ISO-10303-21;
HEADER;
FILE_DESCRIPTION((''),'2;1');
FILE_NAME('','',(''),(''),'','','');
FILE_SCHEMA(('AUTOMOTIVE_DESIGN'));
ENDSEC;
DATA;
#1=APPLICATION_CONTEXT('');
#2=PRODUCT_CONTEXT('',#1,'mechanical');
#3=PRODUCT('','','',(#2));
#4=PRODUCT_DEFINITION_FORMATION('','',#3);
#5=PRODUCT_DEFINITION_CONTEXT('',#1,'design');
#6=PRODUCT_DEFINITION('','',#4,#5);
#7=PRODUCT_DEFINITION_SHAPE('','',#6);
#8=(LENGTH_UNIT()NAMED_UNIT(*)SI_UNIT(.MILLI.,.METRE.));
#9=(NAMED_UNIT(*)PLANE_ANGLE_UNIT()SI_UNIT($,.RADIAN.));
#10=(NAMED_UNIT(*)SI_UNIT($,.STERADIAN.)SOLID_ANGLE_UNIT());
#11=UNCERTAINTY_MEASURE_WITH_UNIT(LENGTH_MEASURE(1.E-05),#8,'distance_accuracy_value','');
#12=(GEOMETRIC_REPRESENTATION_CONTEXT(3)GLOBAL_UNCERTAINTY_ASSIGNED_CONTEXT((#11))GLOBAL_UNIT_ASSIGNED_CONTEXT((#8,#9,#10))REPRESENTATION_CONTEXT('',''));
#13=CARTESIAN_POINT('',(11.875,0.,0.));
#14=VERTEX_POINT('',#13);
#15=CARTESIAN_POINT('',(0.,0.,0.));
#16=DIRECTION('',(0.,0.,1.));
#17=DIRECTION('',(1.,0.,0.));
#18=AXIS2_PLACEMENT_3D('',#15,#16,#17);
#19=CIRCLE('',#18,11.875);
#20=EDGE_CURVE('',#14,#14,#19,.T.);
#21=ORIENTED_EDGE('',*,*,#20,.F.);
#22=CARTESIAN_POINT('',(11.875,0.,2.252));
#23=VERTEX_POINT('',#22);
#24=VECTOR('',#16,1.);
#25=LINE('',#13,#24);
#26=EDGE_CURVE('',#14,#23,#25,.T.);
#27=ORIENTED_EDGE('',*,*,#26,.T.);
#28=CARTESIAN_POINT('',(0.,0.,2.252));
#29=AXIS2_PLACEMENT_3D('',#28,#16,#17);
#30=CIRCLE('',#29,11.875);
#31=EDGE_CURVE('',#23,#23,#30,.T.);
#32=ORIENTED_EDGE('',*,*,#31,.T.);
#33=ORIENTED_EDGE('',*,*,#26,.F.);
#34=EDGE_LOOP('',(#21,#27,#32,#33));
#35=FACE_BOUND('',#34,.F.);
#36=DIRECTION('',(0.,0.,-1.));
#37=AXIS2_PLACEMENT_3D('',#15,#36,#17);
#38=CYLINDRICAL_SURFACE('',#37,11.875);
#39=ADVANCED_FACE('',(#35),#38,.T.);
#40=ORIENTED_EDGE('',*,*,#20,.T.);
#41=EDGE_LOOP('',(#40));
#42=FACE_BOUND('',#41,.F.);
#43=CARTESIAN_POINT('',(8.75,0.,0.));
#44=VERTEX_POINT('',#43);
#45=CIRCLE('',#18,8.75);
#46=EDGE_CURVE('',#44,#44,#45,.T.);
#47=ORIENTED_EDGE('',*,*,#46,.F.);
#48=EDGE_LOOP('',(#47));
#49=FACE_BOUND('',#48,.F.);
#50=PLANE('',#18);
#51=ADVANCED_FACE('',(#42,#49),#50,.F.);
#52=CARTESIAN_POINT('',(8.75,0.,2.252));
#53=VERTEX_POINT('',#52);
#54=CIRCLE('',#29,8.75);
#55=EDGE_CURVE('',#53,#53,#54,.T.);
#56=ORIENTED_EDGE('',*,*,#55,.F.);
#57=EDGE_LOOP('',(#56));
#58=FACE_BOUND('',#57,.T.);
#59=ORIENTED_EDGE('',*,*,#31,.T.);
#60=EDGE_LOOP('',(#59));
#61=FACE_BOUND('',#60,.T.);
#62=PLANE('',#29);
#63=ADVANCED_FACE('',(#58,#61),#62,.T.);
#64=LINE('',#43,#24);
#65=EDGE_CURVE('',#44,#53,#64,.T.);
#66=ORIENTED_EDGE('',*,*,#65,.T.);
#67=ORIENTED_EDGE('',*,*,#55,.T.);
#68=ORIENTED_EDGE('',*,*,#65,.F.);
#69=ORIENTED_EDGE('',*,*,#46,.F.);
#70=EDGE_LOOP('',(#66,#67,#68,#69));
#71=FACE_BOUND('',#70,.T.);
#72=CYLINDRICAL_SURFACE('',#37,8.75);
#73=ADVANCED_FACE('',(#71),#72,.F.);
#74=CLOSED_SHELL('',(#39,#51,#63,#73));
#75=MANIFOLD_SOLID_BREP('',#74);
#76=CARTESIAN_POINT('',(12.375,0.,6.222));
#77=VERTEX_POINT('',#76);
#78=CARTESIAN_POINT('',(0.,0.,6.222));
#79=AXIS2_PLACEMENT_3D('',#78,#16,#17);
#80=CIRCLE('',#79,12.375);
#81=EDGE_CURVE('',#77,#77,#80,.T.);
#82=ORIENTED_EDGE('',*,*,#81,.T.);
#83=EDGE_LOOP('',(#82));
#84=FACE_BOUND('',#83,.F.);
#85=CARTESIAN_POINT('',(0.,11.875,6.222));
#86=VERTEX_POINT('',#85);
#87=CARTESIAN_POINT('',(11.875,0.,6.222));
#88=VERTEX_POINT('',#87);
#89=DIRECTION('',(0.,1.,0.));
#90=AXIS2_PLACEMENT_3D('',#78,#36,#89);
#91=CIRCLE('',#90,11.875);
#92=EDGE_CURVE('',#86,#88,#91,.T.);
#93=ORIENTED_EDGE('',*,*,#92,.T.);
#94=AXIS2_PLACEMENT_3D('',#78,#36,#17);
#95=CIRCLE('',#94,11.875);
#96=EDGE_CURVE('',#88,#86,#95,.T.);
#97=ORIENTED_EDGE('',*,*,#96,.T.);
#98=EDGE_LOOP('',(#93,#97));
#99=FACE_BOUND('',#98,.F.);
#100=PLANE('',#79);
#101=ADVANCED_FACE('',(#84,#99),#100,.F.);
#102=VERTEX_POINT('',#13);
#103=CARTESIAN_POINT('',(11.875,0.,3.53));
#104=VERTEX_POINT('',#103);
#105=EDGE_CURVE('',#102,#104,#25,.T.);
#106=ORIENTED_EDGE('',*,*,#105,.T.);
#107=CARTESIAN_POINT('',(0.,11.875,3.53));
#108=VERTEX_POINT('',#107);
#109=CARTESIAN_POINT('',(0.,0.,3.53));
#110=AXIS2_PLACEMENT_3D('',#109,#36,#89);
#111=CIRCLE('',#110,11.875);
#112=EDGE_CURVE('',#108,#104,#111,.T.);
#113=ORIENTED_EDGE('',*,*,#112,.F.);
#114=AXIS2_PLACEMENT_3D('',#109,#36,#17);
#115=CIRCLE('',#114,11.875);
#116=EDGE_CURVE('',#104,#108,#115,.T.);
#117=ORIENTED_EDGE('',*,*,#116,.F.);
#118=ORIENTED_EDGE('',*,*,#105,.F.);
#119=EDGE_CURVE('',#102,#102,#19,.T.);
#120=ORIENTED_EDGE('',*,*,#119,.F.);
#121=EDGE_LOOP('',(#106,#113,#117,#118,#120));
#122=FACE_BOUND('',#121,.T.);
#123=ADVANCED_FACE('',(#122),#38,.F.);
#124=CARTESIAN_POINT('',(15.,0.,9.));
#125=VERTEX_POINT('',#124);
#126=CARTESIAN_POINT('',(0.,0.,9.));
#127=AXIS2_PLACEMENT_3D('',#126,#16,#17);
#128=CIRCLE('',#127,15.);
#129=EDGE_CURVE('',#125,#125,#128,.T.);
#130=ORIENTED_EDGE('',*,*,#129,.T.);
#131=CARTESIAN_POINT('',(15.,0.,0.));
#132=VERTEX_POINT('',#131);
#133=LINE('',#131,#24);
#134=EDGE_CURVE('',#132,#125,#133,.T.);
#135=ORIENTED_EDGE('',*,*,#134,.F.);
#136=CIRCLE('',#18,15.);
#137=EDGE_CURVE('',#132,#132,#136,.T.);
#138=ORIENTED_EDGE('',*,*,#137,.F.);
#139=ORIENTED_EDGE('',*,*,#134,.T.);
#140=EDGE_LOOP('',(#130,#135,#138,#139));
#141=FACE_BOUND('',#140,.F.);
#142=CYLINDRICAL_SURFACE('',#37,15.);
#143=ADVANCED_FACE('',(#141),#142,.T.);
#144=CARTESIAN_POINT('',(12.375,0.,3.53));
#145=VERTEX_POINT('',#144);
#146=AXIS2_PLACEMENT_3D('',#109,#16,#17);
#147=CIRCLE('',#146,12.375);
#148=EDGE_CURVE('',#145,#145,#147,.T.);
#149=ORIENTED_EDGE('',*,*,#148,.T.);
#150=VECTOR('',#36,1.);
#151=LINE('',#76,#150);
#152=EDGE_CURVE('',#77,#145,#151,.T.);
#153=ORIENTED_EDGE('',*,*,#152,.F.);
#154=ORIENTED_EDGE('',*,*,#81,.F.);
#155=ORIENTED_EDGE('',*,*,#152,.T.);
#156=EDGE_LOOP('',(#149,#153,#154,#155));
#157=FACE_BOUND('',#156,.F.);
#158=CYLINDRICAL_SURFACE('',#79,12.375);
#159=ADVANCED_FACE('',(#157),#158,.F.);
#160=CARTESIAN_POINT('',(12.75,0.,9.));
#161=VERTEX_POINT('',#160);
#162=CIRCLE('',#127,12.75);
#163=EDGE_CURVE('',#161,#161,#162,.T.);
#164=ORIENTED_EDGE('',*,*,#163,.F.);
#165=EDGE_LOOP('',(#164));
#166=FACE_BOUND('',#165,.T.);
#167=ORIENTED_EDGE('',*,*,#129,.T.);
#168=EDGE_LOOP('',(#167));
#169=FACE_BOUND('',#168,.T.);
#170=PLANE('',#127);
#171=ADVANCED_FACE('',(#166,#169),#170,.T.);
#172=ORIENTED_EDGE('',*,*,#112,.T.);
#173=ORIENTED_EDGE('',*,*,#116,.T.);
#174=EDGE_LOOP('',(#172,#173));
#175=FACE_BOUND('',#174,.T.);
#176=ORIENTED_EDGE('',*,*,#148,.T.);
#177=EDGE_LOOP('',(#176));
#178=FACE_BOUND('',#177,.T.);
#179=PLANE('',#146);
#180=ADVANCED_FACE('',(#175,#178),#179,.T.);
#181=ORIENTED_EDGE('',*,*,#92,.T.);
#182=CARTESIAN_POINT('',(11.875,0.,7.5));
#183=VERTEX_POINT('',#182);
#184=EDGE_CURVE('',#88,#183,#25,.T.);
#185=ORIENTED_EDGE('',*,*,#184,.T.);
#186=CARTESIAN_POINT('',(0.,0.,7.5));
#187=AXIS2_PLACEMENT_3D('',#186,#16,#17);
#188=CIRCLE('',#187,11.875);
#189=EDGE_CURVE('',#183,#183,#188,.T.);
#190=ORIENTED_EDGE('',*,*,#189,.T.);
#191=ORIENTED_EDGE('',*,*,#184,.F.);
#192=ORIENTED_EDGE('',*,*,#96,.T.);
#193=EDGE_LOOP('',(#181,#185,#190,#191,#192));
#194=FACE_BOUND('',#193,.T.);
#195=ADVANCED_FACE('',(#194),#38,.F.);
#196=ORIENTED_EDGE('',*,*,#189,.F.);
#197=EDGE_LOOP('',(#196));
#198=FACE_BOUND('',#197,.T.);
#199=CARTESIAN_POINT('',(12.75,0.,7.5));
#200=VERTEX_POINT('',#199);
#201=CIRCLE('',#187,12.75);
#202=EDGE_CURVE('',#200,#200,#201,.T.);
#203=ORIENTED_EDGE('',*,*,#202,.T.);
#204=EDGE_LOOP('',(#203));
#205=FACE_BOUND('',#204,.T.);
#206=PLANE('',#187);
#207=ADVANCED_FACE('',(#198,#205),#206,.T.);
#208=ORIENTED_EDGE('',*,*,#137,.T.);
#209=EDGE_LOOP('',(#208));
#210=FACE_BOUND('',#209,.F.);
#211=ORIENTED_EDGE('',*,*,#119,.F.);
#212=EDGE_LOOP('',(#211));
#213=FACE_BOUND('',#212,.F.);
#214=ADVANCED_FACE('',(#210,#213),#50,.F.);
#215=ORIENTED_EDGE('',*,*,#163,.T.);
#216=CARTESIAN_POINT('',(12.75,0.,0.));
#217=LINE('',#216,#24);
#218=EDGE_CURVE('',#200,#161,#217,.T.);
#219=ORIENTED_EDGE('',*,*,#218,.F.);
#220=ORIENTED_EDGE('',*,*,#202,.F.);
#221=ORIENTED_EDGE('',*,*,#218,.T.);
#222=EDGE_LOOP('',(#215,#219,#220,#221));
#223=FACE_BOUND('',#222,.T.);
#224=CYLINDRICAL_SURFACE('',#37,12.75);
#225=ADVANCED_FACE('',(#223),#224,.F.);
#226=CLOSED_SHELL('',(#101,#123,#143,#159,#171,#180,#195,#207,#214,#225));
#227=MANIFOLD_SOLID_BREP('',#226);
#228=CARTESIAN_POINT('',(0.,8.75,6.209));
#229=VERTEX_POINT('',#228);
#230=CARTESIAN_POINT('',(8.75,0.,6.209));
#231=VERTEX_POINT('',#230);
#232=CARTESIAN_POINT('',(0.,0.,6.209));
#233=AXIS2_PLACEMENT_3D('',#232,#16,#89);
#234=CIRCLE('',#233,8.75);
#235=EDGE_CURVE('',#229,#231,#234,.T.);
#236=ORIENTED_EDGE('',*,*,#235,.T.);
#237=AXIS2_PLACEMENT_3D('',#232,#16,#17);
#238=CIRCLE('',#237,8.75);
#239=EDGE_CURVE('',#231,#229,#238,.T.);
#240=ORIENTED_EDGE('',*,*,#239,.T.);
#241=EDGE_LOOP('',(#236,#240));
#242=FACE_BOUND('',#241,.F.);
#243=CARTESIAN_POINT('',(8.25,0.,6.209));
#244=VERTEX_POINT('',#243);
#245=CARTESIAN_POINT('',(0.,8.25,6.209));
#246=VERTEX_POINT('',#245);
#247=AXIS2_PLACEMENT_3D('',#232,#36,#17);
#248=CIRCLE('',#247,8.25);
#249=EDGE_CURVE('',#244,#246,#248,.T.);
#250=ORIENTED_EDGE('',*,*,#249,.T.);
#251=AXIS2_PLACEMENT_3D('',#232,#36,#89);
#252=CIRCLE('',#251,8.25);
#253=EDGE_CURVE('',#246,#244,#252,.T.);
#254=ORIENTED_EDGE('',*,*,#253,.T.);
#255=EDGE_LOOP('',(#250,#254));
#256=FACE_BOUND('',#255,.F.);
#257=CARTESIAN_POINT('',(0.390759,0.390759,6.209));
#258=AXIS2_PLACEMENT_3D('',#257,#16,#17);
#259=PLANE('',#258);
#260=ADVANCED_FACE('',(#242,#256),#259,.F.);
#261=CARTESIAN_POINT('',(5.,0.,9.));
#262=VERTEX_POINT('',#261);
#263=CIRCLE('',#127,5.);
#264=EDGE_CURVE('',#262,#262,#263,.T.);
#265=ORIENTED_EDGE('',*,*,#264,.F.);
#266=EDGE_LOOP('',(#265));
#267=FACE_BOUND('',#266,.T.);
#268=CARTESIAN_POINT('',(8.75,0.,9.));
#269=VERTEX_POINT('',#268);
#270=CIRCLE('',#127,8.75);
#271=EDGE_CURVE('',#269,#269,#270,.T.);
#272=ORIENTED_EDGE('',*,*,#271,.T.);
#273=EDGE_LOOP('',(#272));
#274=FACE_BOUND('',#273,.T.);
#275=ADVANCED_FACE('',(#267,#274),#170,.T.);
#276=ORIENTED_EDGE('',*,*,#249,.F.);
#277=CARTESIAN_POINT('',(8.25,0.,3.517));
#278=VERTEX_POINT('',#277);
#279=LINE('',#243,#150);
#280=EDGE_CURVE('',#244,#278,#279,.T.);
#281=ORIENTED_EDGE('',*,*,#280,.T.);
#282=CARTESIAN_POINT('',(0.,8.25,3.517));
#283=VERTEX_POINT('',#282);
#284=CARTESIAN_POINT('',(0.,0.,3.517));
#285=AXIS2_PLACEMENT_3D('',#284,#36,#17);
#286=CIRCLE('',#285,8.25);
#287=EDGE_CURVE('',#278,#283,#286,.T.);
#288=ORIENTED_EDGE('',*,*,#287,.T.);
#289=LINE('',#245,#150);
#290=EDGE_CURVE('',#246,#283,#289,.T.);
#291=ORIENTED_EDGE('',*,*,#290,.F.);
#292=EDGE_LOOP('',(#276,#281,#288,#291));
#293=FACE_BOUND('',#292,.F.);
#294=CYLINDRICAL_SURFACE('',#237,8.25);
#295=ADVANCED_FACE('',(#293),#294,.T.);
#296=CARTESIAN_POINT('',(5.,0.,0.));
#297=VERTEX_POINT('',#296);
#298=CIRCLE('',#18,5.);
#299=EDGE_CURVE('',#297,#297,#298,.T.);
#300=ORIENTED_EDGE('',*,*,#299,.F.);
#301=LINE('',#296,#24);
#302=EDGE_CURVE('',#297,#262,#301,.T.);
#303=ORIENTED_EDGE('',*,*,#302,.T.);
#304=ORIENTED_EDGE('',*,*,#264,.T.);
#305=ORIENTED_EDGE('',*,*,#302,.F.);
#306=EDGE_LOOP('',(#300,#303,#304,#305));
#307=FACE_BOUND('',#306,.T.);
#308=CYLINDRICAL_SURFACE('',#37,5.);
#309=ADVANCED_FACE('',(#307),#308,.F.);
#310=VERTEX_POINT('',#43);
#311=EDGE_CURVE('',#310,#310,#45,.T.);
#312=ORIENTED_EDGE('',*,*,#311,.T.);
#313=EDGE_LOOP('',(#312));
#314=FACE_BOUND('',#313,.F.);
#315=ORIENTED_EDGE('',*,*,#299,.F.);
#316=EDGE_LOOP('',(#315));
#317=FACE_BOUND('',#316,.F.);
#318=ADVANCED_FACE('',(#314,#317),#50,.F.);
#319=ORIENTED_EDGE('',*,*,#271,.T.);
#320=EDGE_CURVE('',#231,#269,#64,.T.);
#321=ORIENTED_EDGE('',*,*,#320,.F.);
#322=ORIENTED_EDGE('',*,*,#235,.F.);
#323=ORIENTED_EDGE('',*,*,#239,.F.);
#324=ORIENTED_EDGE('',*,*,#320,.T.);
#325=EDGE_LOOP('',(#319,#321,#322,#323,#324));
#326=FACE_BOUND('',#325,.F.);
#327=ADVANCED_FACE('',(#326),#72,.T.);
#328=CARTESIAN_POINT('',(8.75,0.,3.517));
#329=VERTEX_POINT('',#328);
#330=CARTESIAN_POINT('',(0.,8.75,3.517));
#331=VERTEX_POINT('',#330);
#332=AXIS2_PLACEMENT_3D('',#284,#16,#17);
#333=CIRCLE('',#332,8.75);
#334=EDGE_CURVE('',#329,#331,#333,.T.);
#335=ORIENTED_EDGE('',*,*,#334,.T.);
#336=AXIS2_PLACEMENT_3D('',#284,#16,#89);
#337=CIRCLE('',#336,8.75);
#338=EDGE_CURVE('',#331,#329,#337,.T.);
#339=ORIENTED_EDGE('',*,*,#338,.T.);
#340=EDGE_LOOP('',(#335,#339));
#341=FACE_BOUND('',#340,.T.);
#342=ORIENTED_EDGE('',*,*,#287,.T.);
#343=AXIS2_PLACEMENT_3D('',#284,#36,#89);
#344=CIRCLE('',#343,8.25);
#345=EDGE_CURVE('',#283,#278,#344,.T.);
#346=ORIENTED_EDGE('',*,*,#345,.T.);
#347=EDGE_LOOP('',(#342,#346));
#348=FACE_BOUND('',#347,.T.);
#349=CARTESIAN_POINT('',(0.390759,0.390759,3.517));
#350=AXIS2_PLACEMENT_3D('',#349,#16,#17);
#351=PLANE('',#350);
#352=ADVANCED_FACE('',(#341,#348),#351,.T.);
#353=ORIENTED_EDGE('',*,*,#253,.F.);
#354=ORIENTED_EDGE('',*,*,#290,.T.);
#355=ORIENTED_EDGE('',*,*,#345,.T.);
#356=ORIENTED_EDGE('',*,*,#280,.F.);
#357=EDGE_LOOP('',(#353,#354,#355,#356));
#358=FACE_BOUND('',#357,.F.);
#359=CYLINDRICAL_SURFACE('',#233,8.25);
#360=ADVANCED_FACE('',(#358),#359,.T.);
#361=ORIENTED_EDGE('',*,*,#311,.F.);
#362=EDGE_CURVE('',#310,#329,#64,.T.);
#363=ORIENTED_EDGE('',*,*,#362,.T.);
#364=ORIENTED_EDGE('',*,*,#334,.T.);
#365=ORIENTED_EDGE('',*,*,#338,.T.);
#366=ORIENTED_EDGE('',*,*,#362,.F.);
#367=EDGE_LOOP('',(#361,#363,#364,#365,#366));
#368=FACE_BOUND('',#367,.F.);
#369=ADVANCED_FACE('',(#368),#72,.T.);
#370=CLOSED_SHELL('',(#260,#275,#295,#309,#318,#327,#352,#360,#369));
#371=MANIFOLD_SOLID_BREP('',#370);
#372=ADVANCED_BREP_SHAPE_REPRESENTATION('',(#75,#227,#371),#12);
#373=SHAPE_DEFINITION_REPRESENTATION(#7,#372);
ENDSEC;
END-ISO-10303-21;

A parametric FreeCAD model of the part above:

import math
import FreeCAD as App
import Part
import Sketcher

V = App.Vector
Q = App.Units.Quantity

doc = App.newDocument("Part")
body = doc.addObject("PartDesign::Body", "Body")

# Sketch on XY plane
sketch1 = body.newObject("Sketcher::SketchObject", "Sketch")
sketch1.AttachmentSupport = (doc.getObject("XY_Plane"), [""])
sketch1.MapMode = "FlatFace"
sketch1.addGeometry([
    Part.Circle(V(0, 0, 0), V(0, 0, 1), 15),
    Part.Circle(V(0, 0, 0), V(0, 0, 1), 13),
], False)
sketch1.addConstraint([
    Sketcher.Constraint("Coincident", 0, 3, -1, 1),
    Sketcher.Constraint("Coincident", 1, 3, -1, 1),
    Sketcher.Constraint("Diameter", 0, Q("30 mm")),
    Sketcher.Constraint("Diameter", 1, Q("25.5 mm")),
])
pad1 = body.newObject("PartDesign::Pad", "Pad")
pad1.Profile = sketch1
pad1.Length = 9

# Sketch on XY plane
sketch2 = body.newObject("Sketcher::SketchObject", "Sketch001")
sketch2.AttachmentSupport = (doc.getObject("XY_Plane"), [""])
sketch2.MapMode = "FlatFace"
sketch2.addGeometry([
    Part.Circle(V(0, 0, 0), V(0, 0, 1), 13),
    Part.Circle(V(0, 0, 0), V(0, 0, 1), 12),
], False)
sketch2.addConstraint([
    Sketcher.Constraint("Coincident", 0, 3, -1, 1),
    Sketcher.Constraint("Coincident", 1, 3, -1, 1),
    Sketcher.Constraint("Diameter", 0, Q("25.5 mm")),
    Sketcher.Constraint("Diameter", 1, Q("23.75 mm")),
])
pad2 = body.newObject("PartDesign::Pad", "Pad001")
pad2.Profile = sketch2
pad2.Length = 7.5

# Sketch on XY plane
sketch3 = body.newObject("Sketcher::SketchObject", "Sketch002")
sketch3.AttachmentSupport = (doc.getObject("XY_Plane"), [""])
sketch3.MapMode = "FlatFace"
sketch3.AttachmentOffset = App.Placement(V(0, 0, 6.222), App.Rotation())
sketch3.addGeometry([
    Part.Circle(V(0, 0, 0), V(0, 0, 1), 12),
    Part.ArcOfCircle(Part.Circle(V(0, 0, 0), V(0, 0, 1), 12), math.radians(90), math.radians(360)),
    Part.ArcOfCircle(Part.Circle(V(0, 0, 0), V(0, 0, 1), 12), math.radians(0), math.radians(90)),
], False)
sketch3.addConstraint([
    Sketcher.Constraint("Tangent", 1, 1, 2, 2),
    Sketcher.Constraint("Coincident", 2, 1, 1, 2),
    Sketcher.Constraint("Coincident", 0, 3, -1, 1),
    Sketcher.Constraint("Coincident", 1, 3, -1, 1),
    Sketcher.Constraint("PointOnObject", 1, 1, -2),
    Sketcher.Constraint("PointOnObject", 2, 1, -1),
    Sketcher.Constraint("Diameter", 0, Q("24.75 mm")),
    Sketcher.Constraint("Radius", 1, Q("11.875 mm")),
])
pocket1 = body.newObject("PartDesign::Pocket", "Pocket")
pocket1.Profile = sketch3
pocket1.Length = 2.692
body2 = doc.addObject("PartDesign::Body", "Body001")

# Sketch on XY plane
sketch4 = body2.newObject("Sketcher::SketchObject", "Sketch003")
sketch4.AttachmentSupport = (doc.getObject("XY_Plane001"), [""])
sketch4.MapMode = "FlatFace"
sketch4.addGeometry([
    Part.Circle(V(0, 0, 0), V(0, 0, 1), 9),
    Part.Circle(V(0, 0, 0), V(0, 0, 1), 5),
], False)
sketch4.addConstraint([
    Sketcher.Constraint("Coincident", 0, 3, -1, 1),
    Sketcher.Constraint("Coincident", 1, 3, -1, 1),
    Sketcher.Constraint("Diameter", 1, Q("10 mm")),
    Sketcher.Constraint("Diameter", 0, Q("17.5 mm")),
])
pad3 = body2.newObject("PartDesign::Pad", "Pad002")
pad3.Profile = sketch4
pad3.Length = 9

# Sketch on XY plane
sketch5 = body2.newObject("Sketcher::SketchObject", "Sketch004")
sketch5.AttachmentSupport = (doc.getObject("XY_Plane001"), [""])
sketch5.MapMode = "FlatFace"
sketch5.AttachmentOffset = App.Placement(V(0, 0, 6.209), App.Rotation())
sketch5.addGeometry([
    Part.ArcOfCircle(Part.Circle(V(0, 0, 0), V(0, 0, 1), 9), math.radians(0), math.radians(90)),
    Part.ArcOfCircle(Part.Circle(V(0, 0, 0), V(0, 0, 1), 9), math.radians(90), math.radians(360)),
    Part.ArcOfCircle(Part.Circle(V(0, 0, 0), V(0, 0, 1), 8), math.radians(0), math.radians(90)),
    Part.ArcOfCircle(Part.Circle(V(0, 0, 0), V(0, 0, 1), 8), math.radians(90), math.radians(360)),
], False)
sketch5.addConstraint([
    Sketcher.Constraint("Tangent", 0, 1, 1, 2),
    Sketcher.Constraint("Coincident", 1, 1, 0, 2),
    Sketcher.Constraint("Tangent", 2, 1, 3, 2),
    Sketcher.Constraint("Coincident", 3, 1, 2, 2),
    Sketcher.Constraint("Coincident", 0, 3, -1, 1),
    Sketcher.Constraint("Coincident", 2, 3, -1, 1),
    Sketcher.Constraint("PointOnObject", 0, 1, -1),
    Sketcher.Constraint("PointOnObject", 1, 1, -2),
    Sketcher.Constraint("PointOnObject", 2, 1, -1),
    Sketcher.Constraint("PointOnObject", 3, 1, -2),
    Sketcher.Constraint("Radius", 0, Q("8.75 mm")),
    Sketcher.Constraint("Radius", 2, Q("8.25 mm")),
])
pocket2 = body2.newObject("PartDesign::Pocket", "Pocket001")
pocket2.Profile = sketch5
pocket2.Length = 2.692
body3 = doc.addObject("PartDesign::Body", "Body002")

# Sketch on XY plane
sketch6 = body3.newObject("Sketcher::SketchObject", "Sketch005")
sketch6.AttachmentSupport = (doc.getObject("XY_Plane002"), [""])
sketch6.MapMode = "FlatFace"
sketch6.addGeometry([
    Part.Circle(V(0, 0, 0), V(0, 0, 1), 12),
    Part.Circle(V(0, 0, 0), V(0, 0, 1), 9),
], False)
sketch6.addConstraint([
    Sketcher.Constraint("Coincident", 0, 3, -1, 1),
    Sketcher.Constraint("Coincident", 1, 3, -1, 1),
    Sketcher.Constraint("Diameter", 1, Q("17.5 mm")),
    Sketcher.Constraint("Diameter", 0, Q("23.75 mm")),
])
pad4 = body3.newObject("PartDesign::Pad", "Pad003")
pad4.Profile = sketch6
pad4.Length = 2.252

doc.recompute()
